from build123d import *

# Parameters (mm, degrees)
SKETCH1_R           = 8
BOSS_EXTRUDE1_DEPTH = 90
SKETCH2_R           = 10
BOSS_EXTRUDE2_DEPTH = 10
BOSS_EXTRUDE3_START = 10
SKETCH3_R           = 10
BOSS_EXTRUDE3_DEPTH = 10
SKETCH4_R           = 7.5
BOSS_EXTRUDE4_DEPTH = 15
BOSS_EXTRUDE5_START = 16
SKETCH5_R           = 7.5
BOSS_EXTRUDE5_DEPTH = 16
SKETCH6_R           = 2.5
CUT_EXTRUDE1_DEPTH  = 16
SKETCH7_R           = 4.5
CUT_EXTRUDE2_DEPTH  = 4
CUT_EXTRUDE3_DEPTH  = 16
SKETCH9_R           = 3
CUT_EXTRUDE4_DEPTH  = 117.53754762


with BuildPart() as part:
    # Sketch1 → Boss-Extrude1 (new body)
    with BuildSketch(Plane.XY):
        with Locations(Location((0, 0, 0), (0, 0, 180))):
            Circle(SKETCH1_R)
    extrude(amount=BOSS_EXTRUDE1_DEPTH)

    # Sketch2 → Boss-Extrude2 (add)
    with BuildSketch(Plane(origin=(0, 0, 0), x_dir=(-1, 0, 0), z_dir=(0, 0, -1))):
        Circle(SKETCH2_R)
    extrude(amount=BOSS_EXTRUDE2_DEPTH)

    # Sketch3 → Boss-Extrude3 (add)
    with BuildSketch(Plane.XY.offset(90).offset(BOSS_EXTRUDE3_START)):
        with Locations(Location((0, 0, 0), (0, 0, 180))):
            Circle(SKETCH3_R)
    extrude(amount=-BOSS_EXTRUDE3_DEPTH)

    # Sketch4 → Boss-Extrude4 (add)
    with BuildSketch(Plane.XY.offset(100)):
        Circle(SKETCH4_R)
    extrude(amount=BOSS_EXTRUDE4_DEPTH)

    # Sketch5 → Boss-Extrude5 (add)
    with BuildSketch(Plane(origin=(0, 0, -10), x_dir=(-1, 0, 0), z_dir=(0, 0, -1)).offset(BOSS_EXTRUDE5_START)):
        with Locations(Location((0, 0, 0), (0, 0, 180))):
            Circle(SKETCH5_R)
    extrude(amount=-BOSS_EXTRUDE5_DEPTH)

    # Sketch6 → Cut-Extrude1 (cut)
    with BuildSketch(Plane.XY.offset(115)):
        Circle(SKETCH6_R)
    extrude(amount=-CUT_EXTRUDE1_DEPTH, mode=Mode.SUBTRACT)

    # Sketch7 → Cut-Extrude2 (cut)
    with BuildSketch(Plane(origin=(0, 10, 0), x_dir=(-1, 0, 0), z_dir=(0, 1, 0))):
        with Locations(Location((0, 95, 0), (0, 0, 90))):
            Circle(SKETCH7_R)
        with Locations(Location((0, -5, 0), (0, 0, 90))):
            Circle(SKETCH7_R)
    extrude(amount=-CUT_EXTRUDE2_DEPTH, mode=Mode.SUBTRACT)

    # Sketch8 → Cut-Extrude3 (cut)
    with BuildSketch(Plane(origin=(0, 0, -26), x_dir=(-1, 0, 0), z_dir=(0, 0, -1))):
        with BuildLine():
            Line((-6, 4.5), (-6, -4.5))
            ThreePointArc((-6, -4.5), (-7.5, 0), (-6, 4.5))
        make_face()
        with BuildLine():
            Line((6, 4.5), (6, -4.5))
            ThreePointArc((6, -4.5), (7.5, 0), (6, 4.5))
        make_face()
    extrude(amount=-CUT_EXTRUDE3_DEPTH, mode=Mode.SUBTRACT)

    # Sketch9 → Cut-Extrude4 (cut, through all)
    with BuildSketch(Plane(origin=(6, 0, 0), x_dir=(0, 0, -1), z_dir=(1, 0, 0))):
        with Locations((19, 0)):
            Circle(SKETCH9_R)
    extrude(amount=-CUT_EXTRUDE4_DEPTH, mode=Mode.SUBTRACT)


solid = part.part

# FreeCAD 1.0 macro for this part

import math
import FreeCAD as App
import Part
import Sketcher

doc = App.newDocument("Part")
body = doc.addObject("PartDesign::Body", "Body")

sketch1 = body.newObject("Sketcher::SketchObject", "Sketch")
sketch1.AttachmentSupport = (doc.getObject("XY_Plane"), [""])
sketch1.MapMode = "FlatFace"
sketch1.addGeometry(Part.Circle(App.Vector(0, 0, 0), App.Vector(0, 0, 1), 8), False)
sketch1.addConstraint(Sketcher.Constraint("Coincident", 0, 3, -1, 1))
sketch1.addConstraint(Sketcher.Constraint("Diameter", 0, 16.0))
pad1 = body.newObject("PartDesign::Pad", "Pad")
pad1.Profile = sketch1
pad1.Length = 90

sketch2 = body.newObject("Sketcher::SketchObject", "Sketch001")
sketch2.AttachmentSupport = (doc.getObject("XY_Plane"), [""])
sketch2.MapMode = "FlatFace"
sketch2.addGeometry(Part.Circle(App.Vector(0, 0, 0), App.Vector(0, 0, 1), 10), False)
sketch2.addConstraint(Sketcher.Constraint("Coincident", 0, 3, -1, 1))
sketch2.addConstraint(Sketcher.Constraint("Diameter", 0, 20.0))
pad2 = body.newObject("PartDesign::Pad", "Pad001")
pad2.Profile = sketch2
pad2.Length = 10
pad2.Reversed = True

sketch3 = body.newObject("Sketcher::SketchObject", "Sketch002")
sketch3.AttachmentSupport = (doc.getObject("XY_Plane"), [""])
sketch3.MapMode = "FlatFace"
sketch3.AttachmentOffset = App.Placement(App.Vector(0, 0, 100), App.Rotation())
sketch3.addGeometry(Part.Circle(App.Vector(0, 0, 0), App.Vector(0, 0, 1), 10), False)
sketch3.addConstraint(Sketcher.Constraint("Coincident", 0, 3, -1, 1))
sketch3.addConstraint(Sketcher.Constraint("Diameter", 0, 20.0))
pad3 = body.newObject("PartDesign::Pad", "Pad002")
pad3.Profile = sketch3
pad3.Length = 10
pad3.Reversed = True

sketch4 = body.newObject("Sketcher::SketchObject", "Sketch003")
sketch4.AttachmentSupport = (doc.getObject("XY_Plane"), [""])
sketch4.MapMode = "FlatFace"
sketch4.AttachmentOffset = App.Placement(App.Vector(0, 0, 100), App.Rotation())
sketch4.addGeometry(Part.Circle(App.Vector(0, 0, 0), App.Vector(0, 0, 1), 8), False)
sketch4.addConstraint(Sketcher.Constraint("Coincident", 0, 3, -1, 1))
sketch4.addConstraint(Sketcher.Constraint("Diameter", 0, 15.0))
pad4 = body.newObject("PartDesign::Pad", "Pad003")
pad4.Profile = sketch4
pad4.Length = 15

sketch5 = body.newObject("Sketcher::SketchObject", "Sketch004")
sketch5.AttachmentSupport = (doc.getObject("XY_Plane"), [""])
sketch5.MapMode = "FlatFace"
sketch5.AttachmentOffset = App.Placement(App.Vector(0, 0, -26), App.Rotation())
sketch5.addGeometry(Part.Circle(App.Vector(0, 0, 0), App.Vector(0, 0, 1), 8), False)
sketch5.addConstraint(Sketcher.Constraint("Coincident", 0, 3, -1, 1))
sketch5.addConstraint(Sketcher.Constraint("Diameter", 0, 15.0))
pad5 = body.newObject("PartDesign::Pad", "Pad004")
pad5.Profile = sketch5
pad5.Length = 16

sketch6 = body.newObject("Sketcher::SketchObject", "Sketch005")
sketch6.AttachmentSupport = (doc.getObject("XY_Plane"), [""])
sketch6.MapMode = "FlatFace"
sketch6.AttachmentOffset = App.Placement(App.Vector(0, 0, 115), App.Rotation())
sketch6.addGeometry(Part.Circle(App.Vector(0, 0, 0), App.Vector(0, 0, 1), 2.5), False)
sketch6.addConstraint(Sketcher.Constraint("Coincident", 0, 3, -1, 1))
sketch6.addConstraint(Sketcher.Constraint("Diameter", 0, 5.0))
pocket1 = body.newObject("PartDesign::Pocket", "Pocket")
pocket1.Profile = sketch6
pocket1.Length = 16

sketch7 = body.newObject("Sketcher::SketchObject", "Sketch006")
sketch7.AttachmentSupport = (doc.getObject("XZ_Plane"), [""])
sketch7.MapMode = "FlatFace"
sketch7.AttachmentOffset = App.Placement(App.Vector(0, 0, -10), App.Rotation())
sketch7.addGeometry(Part.Circle(App.Vector(0, 95, 0), App.Vector(0, 0, 1), 4.5), False)
sketch7.addGeometry(Part.Circle(App.Vector(0, -5, 0), App.Vector(0, 0, 1), 4.5), False)
sketch7.addConstraint(Sketcher.Constraint("Equal", 0, 1))
sketch7.addConstraint(Sketcher.Constraint("PointOnObject", 0, 3, -2))
sketch7.addConstraint(Sketcher.Constraint("PointOnObject", 1, 3, -2))
sketch7.addConstraint(Sketcher.Constraint("Diameter", 0, 9.0))
sketch7.addConstraint(Sketcher.Constraint("DistanceY", -1, 1, 0, 3, 95.0))
sketch7.addConstraint(Sketcher.Constraint("DistanceY", 1, 3, -1, 1, 5.0))
pocket2 = body.newObject("PartDesign::Pocket", "Pocket001")
pocket2.Profile = sketch7
pocket2.Length = 4
pocket2.Reversed = True

sketch8 = body.newObject("Sketcher::SketchObject", "Sketch007")
sketch8.AttachmentSupport = (doc.getObject("XY_Plane"), [""])
sketch8.MapMode = "FlatFace"
sketch8.AttachmentOffset = App.Placement(App.Vector(0, 0, -26), App.Rotation())
sketch8.addGeometry(Part.LineSegment(App.Vector(6, -4, 0), App.Vector(6, 4, 0)), False)
sketch8.addGeometry(Part.ArcOfCircle(Part.Circle(App.Vector(0, 0, 0), App.Vector(0, 0, 1), 8), math.radians(-37), math.radians(37)), False)
sketch8.addGeometry(Part.LineSegment(App.Vector(-6, 4, 0), App.Vector(-6, -4, 0)), False)
sketch8.addGeometry(Part.ArcOfCircle(Part.Circle(App.Vector(0, 0, 0), App.Vector(0, 0, 1), 8), math.radians(143), math.radians(217)), False)
sketch8.addConstraint(Sketcher.Constraint("Coincident", 0, 1, 1, 1))
sketch8.addConstraint(Sketcher.Constraint("Coincident", 1, 2, 0, 2))
sketch8.addConstraint(Sketcher.Constraint("Coincident", 2, 1, 3, 1))
sketch8.addConstraint(Sketcher.Constraint("Coincident", 3, 2, 2, 2))
sketch8.addConstraint(Sketcher.Constraint("Vertical", 0))
sketch8.addConstraint(Sketcher.Constraint("Vertical", 2))
sketch8.addConstraint(Sketcher.Constraint("Coincident", 1, 3, -1, 1))
sketch8.addConstraint(Sketcher.Constraint("Coincident", 3, 3, -1, 1))
sketch8.addConstraint(Sketcher.Constraint("Equal", 1, 3))
sketch8.addConstraint(Sketcher.Constraint("Horizontal", 1, 2, 2, 1))
sketch8.addConstraint(Sketcher.Constraint("Radius", 1, 7.5))
sketch8.addConstraint(Sketcher.Constraint("DistanceY", 0, 1, 0, 2, 9.0))
pocket3 = body.newObject("PartDesign::Pocket", "Pocket002")
pocket3.Profile = sketch8
pocket3.Length = 16
pocket3.Reversed = True

sketch9 = body.newObject("Sketcher::SketchObject", "Sketch008")
sketch9.AttachmentSupport = (doc.getObject("YZ_Plane"), [""])
sketch9.MapMode = "FlatFace"
sketch9.AttachmentOffset = App.Placement(App.Vector(0, 0, 6), App.Rotation())
sketch9.addGeometry(Part.Circle(App.Vector(0, -19, 0), App.Vector(0, 0, 1), 3), False)
sketch9.addConstraint(Sketcher.Constraint("PointOnObject", 0, 3, -2))
sketch9.addConstraint(Sketcher.Constraint("Diameter", 0, 6.0))
sketch9.addConstraint(Sketcher.Constraint("DistanceY", 0, 3, -1, 1, 19.0))
pocket4 = body.newObject("PartDesign::Pocket", "Pocket003")
pocket4.Profile = sketch9
pocket4.Type = "ThroughAll"

doc.recompute()
